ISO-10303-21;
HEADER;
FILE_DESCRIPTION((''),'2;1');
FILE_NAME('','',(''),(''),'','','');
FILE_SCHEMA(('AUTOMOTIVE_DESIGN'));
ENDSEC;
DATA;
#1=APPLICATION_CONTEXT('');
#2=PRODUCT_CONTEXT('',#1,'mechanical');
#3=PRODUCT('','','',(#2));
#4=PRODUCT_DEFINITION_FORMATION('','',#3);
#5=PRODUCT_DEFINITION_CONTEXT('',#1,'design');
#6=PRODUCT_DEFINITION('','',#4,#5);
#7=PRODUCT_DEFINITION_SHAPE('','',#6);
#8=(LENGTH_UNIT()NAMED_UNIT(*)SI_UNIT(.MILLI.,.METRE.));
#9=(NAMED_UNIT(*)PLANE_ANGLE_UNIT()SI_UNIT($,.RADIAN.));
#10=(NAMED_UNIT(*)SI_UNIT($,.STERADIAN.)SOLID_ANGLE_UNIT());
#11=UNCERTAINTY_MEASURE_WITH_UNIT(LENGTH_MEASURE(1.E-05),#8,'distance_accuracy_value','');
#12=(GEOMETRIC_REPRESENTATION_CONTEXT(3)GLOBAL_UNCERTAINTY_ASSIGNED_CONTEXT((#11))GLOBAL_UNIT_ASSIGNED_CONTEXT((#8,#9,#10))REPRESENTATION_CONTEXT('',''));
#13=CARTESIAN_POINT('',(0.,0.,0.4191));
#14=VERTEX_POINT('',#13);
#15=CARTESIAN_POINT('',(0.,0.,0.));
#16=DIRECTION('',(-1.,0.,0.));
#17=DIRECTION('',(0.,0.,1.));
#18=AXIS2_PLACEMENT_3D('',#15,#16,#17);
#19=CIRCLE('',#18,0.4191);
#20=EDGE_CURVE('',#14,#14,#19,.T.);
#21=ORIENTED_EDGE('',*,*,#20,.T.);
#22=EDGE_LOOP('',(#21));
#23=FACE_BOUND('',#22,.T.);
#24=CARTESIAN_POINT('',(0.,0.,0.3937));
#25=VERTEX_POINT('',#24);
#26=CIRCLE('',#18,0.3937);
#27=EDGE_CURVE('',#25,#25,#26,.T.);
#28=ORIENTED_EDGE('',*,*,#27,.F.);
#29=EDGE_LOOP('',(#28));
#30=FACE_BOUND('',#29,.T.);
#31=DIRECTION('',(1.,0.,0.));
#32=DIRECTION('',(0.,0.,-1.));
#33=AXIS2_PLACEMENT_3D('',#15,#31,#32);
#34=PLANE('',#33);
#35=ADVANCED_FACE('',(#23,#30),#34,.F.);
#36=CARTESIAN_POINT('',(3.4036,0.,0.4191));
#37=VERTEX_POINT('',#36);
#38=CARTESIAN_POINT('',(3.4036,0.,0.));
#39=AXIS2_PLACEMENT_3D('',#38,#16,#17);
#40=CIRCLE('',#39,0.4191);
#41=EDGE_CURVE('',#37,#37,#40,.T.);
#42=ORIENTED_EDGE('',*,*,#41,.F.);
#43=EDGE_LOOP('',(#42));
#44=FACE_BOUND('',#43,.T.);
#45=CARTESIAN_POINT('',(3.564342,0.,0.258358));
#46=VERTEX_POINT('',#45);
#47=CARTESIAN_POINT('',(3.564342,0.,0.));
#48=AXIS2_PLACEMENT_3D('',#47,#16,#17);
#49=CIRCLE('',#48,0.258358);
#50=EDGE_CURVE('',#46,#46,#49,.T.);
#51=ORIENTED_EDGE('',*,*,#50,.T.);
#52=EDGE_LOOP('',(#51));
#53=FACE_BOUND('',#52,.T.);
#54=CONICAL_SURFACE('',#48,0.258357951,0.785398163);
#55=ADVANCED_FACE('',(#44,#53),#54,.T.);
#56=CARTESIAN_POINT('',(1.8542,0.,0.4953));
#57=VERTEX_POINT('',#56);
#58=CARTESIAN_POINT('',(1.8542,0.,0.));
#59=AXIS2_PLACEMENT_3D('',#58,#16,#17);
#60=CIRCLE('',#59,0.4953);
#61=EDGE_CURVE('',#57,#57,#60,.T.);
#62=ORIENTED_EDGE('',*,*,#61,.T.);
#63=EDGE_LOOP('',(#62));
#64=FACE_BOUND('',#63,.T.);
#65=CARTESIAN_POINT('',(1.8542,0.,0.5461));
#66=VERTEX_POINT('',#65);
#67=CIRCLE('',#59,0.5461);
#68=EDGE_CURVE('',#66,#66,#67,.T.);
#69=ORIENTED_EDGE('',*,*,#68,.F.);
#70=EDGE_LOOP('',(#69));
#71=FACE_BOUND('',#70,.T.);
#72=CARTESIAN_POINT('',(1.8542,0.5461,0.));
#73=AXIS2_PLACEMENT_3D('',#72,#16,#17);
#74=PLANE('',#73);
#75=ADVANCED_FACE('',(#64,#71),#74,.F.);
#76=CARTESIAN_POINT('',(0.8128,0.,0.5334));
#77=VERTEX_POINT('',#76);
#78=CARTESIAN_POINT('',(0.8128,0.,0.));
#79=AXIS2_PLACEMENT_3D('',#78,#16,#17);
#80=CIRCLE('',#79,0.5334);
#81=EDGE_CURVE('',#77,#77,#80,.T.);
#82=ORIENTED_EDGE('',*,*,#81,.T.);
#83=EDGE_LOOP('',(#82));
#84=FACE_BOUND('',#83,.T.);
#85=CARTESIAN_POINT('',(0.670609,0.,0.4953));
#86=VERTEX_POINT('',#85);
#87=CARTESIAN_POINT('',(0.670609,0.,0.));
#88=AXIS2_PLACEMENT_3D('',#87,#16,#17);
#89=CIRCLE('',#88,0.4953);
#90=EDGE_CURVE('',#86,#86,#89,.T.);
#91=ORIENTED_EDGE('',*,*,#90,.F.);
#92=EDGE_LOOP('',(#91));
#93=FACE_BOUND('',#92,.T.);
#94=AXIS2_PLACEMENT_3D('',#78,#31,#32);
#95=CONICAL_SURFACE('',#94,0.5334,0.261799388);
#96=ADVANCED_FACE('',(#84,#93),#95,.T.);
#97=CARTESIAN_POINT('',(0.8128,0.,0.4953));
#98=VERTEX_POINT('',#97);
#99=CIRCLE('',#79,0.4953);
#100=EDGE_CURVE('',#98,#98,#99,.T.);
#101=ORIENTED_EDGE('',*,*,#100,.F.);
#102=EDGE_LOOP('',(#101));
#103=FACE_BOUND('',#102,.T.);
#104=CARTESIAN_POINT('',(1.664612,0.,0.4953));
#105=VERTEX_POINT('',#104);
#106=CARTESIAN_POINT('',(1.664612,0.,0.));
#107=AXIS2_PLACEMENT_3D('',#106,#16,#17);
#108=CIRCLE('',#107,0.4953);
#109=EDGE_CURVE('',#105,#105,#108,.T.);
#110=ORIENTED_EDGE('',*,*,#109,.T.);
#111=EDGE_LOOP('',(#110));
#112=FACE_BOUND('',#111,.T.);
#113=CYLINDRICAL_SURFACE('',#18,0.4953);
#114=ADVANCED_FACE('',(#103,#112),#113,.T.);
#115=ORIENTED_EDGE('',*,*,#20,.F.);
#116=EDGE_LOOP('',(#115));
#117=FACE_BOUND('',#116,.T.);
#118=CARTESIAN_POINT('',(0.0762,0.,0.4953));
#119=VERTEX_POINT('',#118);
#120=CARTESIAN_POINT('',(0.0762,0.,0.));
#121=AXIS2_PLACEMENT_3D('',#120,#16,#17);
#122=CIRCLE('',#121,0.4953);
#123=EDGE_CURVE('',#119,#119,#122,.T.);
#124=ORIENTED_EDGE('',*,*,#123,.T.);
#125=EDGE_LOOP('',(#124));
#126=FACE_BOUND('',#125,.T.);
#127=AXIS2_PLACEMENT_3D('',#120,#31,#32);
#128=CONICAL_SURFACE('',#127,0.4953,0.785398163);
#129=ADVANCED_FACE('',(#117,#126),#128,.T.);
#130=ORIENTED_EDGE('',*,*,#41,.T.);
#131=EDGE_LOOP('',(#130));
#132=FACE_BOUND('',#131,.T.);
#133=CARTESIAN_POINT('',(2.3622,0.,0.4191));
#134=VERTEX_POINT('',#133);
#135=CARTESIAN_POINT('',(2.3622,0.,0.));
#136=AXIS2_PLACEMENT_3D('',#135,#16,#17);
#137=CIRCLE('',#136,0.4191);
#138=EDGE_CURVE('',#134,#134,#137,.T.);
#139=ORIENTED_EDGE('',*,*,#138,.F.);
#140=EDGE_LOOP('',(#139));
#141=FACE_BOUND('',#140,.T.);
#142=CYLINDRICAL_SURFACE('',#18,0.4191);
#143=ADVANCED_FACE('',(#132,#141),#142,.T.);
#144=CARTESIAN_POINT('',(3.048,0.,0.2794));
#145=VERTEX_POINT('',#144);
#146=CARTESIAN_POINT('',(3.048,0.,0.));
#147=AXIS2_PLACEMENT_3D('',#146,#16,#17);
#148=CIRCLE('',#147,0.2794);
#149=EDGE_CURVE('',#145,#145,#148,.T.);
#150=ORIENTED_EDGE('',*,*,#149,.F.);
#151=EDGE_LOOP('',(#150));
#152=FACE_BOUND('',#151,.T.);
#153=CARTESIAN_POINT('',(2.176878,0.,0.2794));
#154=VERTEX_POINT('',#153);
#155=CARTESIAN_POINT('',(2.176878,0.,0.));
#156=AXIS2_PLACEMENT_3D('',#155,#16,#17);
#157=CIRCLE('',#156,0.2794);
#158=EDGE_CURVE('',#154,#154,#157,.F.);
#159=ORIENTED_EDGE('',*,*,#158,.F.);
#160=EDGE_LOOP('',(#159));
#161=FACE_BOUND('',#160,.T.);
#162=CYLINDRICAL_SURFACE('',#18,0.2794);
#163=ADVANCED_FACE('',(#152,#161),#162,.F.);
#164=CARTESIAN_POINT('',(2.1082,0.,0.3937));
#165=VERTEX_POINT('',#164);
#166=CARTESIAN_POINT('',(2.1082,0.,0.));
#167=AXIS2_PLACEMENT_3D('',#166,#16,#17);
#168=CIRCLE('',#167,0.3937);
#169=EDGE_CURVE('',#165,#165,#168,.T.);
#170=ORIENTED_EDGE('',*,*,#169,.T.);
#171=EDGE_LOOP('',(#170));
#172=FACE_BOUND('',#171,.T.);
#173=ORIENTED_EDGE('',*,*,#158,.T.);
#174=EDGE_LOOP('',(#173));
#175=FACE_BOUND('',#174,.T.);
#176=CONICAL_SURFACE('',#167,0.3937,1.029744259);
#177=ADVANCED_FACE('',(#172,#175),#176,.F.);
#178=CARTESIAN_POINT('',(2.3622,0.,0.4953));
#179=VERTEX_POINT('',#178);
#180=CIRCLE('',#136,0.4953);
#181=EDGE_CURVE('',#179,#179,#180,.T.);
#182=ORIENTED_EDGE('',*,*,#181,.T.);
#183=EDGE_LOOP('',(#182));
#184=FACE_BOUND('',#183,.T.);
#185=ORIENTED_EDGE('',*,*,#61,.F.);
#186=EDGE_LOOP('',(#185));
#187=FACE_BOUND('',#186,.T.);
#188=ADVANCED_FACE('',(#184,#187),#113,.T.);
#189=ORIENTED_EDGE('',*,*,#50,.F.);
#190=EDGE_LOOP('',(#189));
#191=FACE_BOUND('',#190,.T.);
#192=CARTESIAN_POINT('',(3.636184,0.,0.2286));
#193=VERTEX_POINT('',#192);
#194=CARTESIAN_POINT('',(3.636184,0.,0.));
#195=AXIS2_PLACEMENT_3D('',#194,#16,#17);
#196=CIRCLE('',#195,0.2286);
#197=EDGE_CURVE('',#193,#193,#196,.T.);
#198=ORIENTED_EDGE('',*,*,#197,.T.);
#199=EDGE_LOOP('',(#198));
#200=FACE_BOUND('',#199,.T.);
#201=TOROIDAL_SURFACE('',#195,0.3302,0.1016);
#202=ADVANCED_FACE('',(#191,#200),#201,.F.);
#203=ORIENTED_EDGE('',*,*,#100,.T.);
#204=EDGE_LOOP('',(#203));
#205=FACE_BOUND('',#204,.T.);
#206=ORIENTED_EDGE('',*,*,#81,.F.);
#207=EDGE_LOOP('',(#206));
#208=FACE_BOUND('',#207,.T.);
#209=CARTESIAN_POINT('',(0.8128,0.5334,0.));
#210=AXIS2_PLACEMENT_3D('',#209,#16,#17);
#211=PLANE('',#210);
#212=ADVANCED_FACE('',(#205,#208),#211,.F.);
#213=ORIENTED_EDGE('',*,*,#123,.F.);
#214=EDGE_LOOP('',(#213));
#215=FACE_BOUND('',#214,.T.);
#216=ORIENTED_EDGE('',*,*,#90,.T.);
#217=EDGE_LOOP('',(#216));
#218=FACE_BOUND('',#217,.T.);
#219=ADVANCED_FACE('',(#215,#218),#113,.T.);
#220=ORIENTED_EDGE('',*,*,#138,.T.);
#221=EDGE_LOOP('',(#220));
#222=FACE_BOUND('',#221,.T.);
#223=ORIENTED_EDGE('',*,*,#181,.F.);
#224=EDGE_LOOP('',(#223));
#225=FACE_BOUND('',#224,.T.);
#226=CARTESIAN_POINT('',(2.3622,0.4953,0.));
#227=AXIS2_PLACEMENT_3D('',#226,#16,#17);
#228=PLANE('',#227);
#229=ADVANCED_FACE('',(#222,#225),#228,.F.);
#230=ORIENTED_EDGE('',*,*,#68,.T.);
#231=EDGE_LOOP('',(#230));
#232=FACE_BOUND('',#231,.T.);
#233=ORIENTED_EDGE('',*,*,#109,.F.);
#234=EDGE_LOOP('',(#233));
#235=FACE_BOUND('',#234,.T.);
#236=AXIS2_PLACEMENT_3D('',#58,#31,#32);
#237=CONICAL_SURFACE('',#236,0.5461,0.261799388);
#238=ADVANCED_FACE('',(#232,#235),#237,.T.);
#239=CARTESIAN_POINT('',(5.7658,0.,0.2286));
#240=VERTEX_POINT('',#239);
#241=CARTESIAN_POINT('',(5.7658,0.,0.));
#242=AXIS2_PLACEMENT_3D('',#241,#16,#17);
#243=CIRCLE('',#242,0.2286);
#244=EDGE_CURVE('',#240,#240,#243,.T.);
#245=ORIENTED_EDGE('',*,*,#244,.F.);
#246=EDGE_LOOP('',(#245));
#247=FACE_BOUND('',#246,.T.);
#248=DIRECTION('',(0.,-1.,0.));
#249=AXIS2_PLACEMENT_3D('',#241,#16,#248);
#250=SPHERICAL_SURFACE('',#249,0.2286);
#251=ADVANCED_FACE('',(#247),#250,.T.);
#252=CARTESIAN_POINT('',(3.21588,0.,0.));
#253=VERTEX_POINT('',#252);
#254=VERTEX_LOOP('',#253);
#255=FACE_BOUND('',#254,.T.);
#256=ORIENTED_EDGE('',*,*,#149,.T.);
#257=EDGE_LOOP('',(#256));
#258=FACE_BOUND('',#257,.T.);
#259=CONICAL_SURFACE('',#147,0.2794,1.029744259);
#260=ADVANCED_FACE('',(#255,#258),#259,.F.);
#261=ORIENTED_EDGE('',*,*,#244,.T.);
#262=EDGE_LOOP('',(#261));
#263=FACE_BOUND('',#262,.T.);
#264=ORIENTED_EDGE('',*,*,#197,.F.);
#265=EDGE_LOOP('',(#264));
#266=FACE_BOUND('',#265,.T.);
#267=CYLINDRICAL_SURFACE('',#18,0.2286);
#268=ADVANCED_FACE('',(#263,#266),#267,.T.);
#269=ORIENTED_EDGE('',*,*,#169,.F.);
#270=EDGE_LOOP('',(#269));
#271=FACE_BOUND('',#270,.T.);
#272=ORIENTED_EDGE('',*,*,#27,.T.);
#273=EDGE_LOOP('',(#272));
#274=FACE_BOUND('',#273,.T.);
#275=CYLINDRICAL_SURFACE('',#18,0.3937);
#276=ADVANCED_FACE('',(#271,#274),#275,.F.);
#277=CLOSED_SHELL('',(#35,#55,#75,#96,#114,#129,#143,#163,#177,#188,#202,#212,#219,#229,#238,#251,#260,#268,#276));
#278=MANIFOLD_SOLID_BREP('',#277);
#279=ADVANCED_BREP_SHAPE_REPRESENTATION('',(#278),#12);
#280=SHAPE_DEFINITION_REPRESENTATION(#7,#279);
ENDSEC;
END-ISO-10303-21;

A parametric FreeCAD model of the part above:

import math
import FreeCAD as App
import Part
import Sketcher

V = App.Vector
Q = App.Units.Quantity

doc = App.newDocument("Part")
body = doc.addObject("PartDesign::Body", "Body")

# Sketch on XY plane
sketch1 = body.newObject("Sketcher::SketchObject", "Sketch")
sketch1.AttachmentSupport = (doc.getObject("XY_Plane"), [""])
sketch1.MapMode = "FlatFace"
sketch1.addGeometry([
    Part.LineSegment(V(0, 0.419, 0), V(0, 0, 0)),  # 0
    Part.LineSegment(V(0, 0, 0), V(5.994, 0, 0)),  # 1
    Part.ArcOfCircle(Part.Circle(V(5.766, 0, 0), V(0, 0, 1), 0.229), math.radians(0), math.radians(90)),  # 2
    Part.LineSegment(V(5.766, 0.229, 0), V(3.636, 0.229, 0)),  # 3
    Part.ArcOfCircle(Part.Circle(V(3.636, 0.33, 0), V(0, 0, 1), 0.102), math.radians(-135), math.radians(-90)),  # 4
    Part.LineSegment(V(3.564, 0.258, 0), V(3.404, 0.419, 0)),  # 5
    Part.LineSegment(V(3.404, 0.419, 0), V(2.362, 0.419, 0)),  # 6
    Part.LineSegment(V(2.362, 0.419, 0), V(2.362, 0.495, 0)),  # 7
    Part.LineSegment(V(2.362, 0.495, 0), V(1.854, 0.495, 0)),  # 8
    Part.LineSegment(V(1.854, 0.495, 0), V(1.854, 0.546, 0)),  # 9
    Part.LineSegment(V(1.854, 0.546, 0), V(1.665, 0.495, 0)),  # 10
    Part.LineSegment(V(1.665, 0.495, 0), V(0.813, 0.495, 0)),  # 11
    Part.LineSegment(V(0.813, 0.495, 0), V(0.813, 0.533, 0)),  # 12
    Part.LineSegment(V(0.813, 0.533, 0), V(0.671, 0.495, 0)),  # 13
    Part.LineSegment(V(0.671, 0.495, 0), V(0.076, 0.495, 0)),  # 14
    Part.LineSegment(V(0.076, 0.495, 0), V(0, 0.419, 0)),  # 15
], False)
sketch1.addConstraint([
    Sketcher.Constraint("Coincident", 0, 2, 1, 1),
    Sketcher.Constraint("Coincident", 1, 2, 2, 1),
    Sketcher.Constraint("Tangent", 2, 2, 3, 1),
    Sketcher.Constraint("Tangent", 3, 2, 4, 2),
    Sketcher.Constraint("Tangent", 4, 1, 5, 1),
    Sketcher.Constraint("Coincident", 5, 2, 6, 1),
    Sketcher.Constraint("Coincident", 6, 2, 7, 1),
    Sketcher.Constraint("Coincident", 7, 2, 8, 1),
    Sketcher.Constraint("Coincident", 8, 2, 9, 1),
    Sketcher.Constraint("Coincident", 9, 2, 10, 1),
    Sketcher.Constraint("Coincident", 10, 2, 11, 1),
    Sketcher.Constraint("Coincident", 11, 2, 12, 1),
    Sketcher.Constraint("Coincident", 12, 2, 13, 1),
    Sketcher.Constraint("Coincident", 13, 2, 14, 1),
    Sketcher.Constraint("Coincident", 14, 2, 15, 1),
    Sketcher.Constraint("Coincident", 15, 2, 0, 1),
    Sketcher.Constraint("Vertical", 0),
    Sketcher.Constraint("Horizontal", 1),
    Sketcher.Constraint("Horizontal", 3),
    Sketcher.Constraint("Horizontal", 6),
    Sketcher.Constraint("Vertical", 7),
    Sketcher.Constraint("Horizontal", 8),
    Sketcher.Constraint("Vertical", 9),
    Sketcher.Constraint("Horizontal", 11),
    Sketcher.Constraint("Vertical", 12),
    Sketcher.Constraint("Horizontal", 14),
    Sketcher.Constraint("Coincident", 0, 2, -1, 1),
    Sketcher.Constraint("PointOnObject", 2, 3, -1),
    Sketcher.Constraint("Parallel", 10, 13),
    Sketcher.Constraint("Perpendicular", 5, 15),
    Sketcher.Constraint("Horizontal", 8, 2, 10, 2),
    Sketcher.Constraint("Horizontal", 11, 2, 13, 2),
    Sketcher.Constraint("Horizontal", 6, 2, 15, 2),
    Sketcher.Constraint("Angle", 5, Q("135 deg")),
    Sketcher.Constraint("Angle", 10, Q("-165 deg")),
    Sketcher.Constraint("Radius", 2, Q("0.009 in")),
    Sketcher.Constraint("Radius", 4, Q("0.004 in")),
    Sketcher.Constraint("DistanceX", 8, 2, 8, 1, Q("0.02 in")),
    Sketcher.Constraint("DistanceX", 1, 1, 1, 2, Q("0.236 in")),
    Sketcher.Constraint("DistanceX", 6, 2, 6, 1, Q("0.041 in")),
    Sketcher.Constraint("DistanceY", 7, 1, 7, 2, Q("0.003 in")),
    Sketcher.Constraint("DistanceY", 9, 1, 9, 2, Q("0.002 in")),
    Sketcher.Constraint("DistanceY", 0, 2, 0, 1, Q("0.0165 in")),
    Sketcher.Constraint("DistanceY", 12, 1, 12, 2, Q("0.0015 in")),
    Sketcher.Constraint("DistanceX", -1, 1, 5, 2, Q("0.134 in")),
    Sketcher.Constraint("DistanceX", -1, 1, 11, 2, Q("0.032 in")),
])
revolution = body.newObject("PartDesign::Revolution", "Revolution")
revolution.Profile = sketch1
revolution.ReferenceAxis = (sketch1, ["H_Axis"])
revolution.Angle = 360

# Sketch on YZ plane
sketch2 = body.newObject("Sketcher::SketchObject", "Sketch001")
sketch2.AttachmentSupport = (doc.getObject("YZ_Plane"), [""])
sketch2.MapMode = "FlatFace"
sketch2.addGeometry(Part.Circle(V(0, 0, 0), V(0, 0, 1), 0.39), False)
sketch2.addConstraint([
    Sketcher.Constraint("Coincident", 0, 3, -1, 1),
    Sketcher.Constraint("Diameter", 0, Q("0.031 in")),
])
doc.recompute()
hole = body.newObject("PartDesign::Hole", "Hole")
hole.Profile = sketch2
hole.ThreadType = "None"
hole.Diameter = Q("0.031 in")
hole.DepthType = "Dimension"
hole.Depth = Q("0.083 in")
hole.DrillPoint = "Angled"
hole.DrillPointAngle = 118
hole.Reversed = True

# Sketch on YZ plane
sketch3 = body.newObject("Sketcher::SketchObject", "Sketch002")
sketch3.AttachmentSupport = (doc.getObject("YZ_Plane"), [""])
sketch3.MapMode = "FlatFace"
sketch3.addGeometry(Part.Circle(V(0, 0, 0), V(0, 0, 1), 0.28), False)
sketch3.addConstraint([
    Sketcher.Constraint("Coincident", 0, 3, -1, 1),
    Sketcher.Constraint("Diameter", 0, Q("0.022 in")),
])
doc.recompute()
hole2 = body.newObject("PartDesign::Hole", "Hole001")
hole2.Profile = sketch3
hole2.ThreadType = "None"
hole2.Diameter = Q("0.022 in")
hole2.DepthType = "Dimension"
hole2.Depth = Q("0.12 in")
hole2.DrillPoint = "Angled"
hole2.DrillPointAngle = 118
hole2.Reversed = True

doc.recompute()
